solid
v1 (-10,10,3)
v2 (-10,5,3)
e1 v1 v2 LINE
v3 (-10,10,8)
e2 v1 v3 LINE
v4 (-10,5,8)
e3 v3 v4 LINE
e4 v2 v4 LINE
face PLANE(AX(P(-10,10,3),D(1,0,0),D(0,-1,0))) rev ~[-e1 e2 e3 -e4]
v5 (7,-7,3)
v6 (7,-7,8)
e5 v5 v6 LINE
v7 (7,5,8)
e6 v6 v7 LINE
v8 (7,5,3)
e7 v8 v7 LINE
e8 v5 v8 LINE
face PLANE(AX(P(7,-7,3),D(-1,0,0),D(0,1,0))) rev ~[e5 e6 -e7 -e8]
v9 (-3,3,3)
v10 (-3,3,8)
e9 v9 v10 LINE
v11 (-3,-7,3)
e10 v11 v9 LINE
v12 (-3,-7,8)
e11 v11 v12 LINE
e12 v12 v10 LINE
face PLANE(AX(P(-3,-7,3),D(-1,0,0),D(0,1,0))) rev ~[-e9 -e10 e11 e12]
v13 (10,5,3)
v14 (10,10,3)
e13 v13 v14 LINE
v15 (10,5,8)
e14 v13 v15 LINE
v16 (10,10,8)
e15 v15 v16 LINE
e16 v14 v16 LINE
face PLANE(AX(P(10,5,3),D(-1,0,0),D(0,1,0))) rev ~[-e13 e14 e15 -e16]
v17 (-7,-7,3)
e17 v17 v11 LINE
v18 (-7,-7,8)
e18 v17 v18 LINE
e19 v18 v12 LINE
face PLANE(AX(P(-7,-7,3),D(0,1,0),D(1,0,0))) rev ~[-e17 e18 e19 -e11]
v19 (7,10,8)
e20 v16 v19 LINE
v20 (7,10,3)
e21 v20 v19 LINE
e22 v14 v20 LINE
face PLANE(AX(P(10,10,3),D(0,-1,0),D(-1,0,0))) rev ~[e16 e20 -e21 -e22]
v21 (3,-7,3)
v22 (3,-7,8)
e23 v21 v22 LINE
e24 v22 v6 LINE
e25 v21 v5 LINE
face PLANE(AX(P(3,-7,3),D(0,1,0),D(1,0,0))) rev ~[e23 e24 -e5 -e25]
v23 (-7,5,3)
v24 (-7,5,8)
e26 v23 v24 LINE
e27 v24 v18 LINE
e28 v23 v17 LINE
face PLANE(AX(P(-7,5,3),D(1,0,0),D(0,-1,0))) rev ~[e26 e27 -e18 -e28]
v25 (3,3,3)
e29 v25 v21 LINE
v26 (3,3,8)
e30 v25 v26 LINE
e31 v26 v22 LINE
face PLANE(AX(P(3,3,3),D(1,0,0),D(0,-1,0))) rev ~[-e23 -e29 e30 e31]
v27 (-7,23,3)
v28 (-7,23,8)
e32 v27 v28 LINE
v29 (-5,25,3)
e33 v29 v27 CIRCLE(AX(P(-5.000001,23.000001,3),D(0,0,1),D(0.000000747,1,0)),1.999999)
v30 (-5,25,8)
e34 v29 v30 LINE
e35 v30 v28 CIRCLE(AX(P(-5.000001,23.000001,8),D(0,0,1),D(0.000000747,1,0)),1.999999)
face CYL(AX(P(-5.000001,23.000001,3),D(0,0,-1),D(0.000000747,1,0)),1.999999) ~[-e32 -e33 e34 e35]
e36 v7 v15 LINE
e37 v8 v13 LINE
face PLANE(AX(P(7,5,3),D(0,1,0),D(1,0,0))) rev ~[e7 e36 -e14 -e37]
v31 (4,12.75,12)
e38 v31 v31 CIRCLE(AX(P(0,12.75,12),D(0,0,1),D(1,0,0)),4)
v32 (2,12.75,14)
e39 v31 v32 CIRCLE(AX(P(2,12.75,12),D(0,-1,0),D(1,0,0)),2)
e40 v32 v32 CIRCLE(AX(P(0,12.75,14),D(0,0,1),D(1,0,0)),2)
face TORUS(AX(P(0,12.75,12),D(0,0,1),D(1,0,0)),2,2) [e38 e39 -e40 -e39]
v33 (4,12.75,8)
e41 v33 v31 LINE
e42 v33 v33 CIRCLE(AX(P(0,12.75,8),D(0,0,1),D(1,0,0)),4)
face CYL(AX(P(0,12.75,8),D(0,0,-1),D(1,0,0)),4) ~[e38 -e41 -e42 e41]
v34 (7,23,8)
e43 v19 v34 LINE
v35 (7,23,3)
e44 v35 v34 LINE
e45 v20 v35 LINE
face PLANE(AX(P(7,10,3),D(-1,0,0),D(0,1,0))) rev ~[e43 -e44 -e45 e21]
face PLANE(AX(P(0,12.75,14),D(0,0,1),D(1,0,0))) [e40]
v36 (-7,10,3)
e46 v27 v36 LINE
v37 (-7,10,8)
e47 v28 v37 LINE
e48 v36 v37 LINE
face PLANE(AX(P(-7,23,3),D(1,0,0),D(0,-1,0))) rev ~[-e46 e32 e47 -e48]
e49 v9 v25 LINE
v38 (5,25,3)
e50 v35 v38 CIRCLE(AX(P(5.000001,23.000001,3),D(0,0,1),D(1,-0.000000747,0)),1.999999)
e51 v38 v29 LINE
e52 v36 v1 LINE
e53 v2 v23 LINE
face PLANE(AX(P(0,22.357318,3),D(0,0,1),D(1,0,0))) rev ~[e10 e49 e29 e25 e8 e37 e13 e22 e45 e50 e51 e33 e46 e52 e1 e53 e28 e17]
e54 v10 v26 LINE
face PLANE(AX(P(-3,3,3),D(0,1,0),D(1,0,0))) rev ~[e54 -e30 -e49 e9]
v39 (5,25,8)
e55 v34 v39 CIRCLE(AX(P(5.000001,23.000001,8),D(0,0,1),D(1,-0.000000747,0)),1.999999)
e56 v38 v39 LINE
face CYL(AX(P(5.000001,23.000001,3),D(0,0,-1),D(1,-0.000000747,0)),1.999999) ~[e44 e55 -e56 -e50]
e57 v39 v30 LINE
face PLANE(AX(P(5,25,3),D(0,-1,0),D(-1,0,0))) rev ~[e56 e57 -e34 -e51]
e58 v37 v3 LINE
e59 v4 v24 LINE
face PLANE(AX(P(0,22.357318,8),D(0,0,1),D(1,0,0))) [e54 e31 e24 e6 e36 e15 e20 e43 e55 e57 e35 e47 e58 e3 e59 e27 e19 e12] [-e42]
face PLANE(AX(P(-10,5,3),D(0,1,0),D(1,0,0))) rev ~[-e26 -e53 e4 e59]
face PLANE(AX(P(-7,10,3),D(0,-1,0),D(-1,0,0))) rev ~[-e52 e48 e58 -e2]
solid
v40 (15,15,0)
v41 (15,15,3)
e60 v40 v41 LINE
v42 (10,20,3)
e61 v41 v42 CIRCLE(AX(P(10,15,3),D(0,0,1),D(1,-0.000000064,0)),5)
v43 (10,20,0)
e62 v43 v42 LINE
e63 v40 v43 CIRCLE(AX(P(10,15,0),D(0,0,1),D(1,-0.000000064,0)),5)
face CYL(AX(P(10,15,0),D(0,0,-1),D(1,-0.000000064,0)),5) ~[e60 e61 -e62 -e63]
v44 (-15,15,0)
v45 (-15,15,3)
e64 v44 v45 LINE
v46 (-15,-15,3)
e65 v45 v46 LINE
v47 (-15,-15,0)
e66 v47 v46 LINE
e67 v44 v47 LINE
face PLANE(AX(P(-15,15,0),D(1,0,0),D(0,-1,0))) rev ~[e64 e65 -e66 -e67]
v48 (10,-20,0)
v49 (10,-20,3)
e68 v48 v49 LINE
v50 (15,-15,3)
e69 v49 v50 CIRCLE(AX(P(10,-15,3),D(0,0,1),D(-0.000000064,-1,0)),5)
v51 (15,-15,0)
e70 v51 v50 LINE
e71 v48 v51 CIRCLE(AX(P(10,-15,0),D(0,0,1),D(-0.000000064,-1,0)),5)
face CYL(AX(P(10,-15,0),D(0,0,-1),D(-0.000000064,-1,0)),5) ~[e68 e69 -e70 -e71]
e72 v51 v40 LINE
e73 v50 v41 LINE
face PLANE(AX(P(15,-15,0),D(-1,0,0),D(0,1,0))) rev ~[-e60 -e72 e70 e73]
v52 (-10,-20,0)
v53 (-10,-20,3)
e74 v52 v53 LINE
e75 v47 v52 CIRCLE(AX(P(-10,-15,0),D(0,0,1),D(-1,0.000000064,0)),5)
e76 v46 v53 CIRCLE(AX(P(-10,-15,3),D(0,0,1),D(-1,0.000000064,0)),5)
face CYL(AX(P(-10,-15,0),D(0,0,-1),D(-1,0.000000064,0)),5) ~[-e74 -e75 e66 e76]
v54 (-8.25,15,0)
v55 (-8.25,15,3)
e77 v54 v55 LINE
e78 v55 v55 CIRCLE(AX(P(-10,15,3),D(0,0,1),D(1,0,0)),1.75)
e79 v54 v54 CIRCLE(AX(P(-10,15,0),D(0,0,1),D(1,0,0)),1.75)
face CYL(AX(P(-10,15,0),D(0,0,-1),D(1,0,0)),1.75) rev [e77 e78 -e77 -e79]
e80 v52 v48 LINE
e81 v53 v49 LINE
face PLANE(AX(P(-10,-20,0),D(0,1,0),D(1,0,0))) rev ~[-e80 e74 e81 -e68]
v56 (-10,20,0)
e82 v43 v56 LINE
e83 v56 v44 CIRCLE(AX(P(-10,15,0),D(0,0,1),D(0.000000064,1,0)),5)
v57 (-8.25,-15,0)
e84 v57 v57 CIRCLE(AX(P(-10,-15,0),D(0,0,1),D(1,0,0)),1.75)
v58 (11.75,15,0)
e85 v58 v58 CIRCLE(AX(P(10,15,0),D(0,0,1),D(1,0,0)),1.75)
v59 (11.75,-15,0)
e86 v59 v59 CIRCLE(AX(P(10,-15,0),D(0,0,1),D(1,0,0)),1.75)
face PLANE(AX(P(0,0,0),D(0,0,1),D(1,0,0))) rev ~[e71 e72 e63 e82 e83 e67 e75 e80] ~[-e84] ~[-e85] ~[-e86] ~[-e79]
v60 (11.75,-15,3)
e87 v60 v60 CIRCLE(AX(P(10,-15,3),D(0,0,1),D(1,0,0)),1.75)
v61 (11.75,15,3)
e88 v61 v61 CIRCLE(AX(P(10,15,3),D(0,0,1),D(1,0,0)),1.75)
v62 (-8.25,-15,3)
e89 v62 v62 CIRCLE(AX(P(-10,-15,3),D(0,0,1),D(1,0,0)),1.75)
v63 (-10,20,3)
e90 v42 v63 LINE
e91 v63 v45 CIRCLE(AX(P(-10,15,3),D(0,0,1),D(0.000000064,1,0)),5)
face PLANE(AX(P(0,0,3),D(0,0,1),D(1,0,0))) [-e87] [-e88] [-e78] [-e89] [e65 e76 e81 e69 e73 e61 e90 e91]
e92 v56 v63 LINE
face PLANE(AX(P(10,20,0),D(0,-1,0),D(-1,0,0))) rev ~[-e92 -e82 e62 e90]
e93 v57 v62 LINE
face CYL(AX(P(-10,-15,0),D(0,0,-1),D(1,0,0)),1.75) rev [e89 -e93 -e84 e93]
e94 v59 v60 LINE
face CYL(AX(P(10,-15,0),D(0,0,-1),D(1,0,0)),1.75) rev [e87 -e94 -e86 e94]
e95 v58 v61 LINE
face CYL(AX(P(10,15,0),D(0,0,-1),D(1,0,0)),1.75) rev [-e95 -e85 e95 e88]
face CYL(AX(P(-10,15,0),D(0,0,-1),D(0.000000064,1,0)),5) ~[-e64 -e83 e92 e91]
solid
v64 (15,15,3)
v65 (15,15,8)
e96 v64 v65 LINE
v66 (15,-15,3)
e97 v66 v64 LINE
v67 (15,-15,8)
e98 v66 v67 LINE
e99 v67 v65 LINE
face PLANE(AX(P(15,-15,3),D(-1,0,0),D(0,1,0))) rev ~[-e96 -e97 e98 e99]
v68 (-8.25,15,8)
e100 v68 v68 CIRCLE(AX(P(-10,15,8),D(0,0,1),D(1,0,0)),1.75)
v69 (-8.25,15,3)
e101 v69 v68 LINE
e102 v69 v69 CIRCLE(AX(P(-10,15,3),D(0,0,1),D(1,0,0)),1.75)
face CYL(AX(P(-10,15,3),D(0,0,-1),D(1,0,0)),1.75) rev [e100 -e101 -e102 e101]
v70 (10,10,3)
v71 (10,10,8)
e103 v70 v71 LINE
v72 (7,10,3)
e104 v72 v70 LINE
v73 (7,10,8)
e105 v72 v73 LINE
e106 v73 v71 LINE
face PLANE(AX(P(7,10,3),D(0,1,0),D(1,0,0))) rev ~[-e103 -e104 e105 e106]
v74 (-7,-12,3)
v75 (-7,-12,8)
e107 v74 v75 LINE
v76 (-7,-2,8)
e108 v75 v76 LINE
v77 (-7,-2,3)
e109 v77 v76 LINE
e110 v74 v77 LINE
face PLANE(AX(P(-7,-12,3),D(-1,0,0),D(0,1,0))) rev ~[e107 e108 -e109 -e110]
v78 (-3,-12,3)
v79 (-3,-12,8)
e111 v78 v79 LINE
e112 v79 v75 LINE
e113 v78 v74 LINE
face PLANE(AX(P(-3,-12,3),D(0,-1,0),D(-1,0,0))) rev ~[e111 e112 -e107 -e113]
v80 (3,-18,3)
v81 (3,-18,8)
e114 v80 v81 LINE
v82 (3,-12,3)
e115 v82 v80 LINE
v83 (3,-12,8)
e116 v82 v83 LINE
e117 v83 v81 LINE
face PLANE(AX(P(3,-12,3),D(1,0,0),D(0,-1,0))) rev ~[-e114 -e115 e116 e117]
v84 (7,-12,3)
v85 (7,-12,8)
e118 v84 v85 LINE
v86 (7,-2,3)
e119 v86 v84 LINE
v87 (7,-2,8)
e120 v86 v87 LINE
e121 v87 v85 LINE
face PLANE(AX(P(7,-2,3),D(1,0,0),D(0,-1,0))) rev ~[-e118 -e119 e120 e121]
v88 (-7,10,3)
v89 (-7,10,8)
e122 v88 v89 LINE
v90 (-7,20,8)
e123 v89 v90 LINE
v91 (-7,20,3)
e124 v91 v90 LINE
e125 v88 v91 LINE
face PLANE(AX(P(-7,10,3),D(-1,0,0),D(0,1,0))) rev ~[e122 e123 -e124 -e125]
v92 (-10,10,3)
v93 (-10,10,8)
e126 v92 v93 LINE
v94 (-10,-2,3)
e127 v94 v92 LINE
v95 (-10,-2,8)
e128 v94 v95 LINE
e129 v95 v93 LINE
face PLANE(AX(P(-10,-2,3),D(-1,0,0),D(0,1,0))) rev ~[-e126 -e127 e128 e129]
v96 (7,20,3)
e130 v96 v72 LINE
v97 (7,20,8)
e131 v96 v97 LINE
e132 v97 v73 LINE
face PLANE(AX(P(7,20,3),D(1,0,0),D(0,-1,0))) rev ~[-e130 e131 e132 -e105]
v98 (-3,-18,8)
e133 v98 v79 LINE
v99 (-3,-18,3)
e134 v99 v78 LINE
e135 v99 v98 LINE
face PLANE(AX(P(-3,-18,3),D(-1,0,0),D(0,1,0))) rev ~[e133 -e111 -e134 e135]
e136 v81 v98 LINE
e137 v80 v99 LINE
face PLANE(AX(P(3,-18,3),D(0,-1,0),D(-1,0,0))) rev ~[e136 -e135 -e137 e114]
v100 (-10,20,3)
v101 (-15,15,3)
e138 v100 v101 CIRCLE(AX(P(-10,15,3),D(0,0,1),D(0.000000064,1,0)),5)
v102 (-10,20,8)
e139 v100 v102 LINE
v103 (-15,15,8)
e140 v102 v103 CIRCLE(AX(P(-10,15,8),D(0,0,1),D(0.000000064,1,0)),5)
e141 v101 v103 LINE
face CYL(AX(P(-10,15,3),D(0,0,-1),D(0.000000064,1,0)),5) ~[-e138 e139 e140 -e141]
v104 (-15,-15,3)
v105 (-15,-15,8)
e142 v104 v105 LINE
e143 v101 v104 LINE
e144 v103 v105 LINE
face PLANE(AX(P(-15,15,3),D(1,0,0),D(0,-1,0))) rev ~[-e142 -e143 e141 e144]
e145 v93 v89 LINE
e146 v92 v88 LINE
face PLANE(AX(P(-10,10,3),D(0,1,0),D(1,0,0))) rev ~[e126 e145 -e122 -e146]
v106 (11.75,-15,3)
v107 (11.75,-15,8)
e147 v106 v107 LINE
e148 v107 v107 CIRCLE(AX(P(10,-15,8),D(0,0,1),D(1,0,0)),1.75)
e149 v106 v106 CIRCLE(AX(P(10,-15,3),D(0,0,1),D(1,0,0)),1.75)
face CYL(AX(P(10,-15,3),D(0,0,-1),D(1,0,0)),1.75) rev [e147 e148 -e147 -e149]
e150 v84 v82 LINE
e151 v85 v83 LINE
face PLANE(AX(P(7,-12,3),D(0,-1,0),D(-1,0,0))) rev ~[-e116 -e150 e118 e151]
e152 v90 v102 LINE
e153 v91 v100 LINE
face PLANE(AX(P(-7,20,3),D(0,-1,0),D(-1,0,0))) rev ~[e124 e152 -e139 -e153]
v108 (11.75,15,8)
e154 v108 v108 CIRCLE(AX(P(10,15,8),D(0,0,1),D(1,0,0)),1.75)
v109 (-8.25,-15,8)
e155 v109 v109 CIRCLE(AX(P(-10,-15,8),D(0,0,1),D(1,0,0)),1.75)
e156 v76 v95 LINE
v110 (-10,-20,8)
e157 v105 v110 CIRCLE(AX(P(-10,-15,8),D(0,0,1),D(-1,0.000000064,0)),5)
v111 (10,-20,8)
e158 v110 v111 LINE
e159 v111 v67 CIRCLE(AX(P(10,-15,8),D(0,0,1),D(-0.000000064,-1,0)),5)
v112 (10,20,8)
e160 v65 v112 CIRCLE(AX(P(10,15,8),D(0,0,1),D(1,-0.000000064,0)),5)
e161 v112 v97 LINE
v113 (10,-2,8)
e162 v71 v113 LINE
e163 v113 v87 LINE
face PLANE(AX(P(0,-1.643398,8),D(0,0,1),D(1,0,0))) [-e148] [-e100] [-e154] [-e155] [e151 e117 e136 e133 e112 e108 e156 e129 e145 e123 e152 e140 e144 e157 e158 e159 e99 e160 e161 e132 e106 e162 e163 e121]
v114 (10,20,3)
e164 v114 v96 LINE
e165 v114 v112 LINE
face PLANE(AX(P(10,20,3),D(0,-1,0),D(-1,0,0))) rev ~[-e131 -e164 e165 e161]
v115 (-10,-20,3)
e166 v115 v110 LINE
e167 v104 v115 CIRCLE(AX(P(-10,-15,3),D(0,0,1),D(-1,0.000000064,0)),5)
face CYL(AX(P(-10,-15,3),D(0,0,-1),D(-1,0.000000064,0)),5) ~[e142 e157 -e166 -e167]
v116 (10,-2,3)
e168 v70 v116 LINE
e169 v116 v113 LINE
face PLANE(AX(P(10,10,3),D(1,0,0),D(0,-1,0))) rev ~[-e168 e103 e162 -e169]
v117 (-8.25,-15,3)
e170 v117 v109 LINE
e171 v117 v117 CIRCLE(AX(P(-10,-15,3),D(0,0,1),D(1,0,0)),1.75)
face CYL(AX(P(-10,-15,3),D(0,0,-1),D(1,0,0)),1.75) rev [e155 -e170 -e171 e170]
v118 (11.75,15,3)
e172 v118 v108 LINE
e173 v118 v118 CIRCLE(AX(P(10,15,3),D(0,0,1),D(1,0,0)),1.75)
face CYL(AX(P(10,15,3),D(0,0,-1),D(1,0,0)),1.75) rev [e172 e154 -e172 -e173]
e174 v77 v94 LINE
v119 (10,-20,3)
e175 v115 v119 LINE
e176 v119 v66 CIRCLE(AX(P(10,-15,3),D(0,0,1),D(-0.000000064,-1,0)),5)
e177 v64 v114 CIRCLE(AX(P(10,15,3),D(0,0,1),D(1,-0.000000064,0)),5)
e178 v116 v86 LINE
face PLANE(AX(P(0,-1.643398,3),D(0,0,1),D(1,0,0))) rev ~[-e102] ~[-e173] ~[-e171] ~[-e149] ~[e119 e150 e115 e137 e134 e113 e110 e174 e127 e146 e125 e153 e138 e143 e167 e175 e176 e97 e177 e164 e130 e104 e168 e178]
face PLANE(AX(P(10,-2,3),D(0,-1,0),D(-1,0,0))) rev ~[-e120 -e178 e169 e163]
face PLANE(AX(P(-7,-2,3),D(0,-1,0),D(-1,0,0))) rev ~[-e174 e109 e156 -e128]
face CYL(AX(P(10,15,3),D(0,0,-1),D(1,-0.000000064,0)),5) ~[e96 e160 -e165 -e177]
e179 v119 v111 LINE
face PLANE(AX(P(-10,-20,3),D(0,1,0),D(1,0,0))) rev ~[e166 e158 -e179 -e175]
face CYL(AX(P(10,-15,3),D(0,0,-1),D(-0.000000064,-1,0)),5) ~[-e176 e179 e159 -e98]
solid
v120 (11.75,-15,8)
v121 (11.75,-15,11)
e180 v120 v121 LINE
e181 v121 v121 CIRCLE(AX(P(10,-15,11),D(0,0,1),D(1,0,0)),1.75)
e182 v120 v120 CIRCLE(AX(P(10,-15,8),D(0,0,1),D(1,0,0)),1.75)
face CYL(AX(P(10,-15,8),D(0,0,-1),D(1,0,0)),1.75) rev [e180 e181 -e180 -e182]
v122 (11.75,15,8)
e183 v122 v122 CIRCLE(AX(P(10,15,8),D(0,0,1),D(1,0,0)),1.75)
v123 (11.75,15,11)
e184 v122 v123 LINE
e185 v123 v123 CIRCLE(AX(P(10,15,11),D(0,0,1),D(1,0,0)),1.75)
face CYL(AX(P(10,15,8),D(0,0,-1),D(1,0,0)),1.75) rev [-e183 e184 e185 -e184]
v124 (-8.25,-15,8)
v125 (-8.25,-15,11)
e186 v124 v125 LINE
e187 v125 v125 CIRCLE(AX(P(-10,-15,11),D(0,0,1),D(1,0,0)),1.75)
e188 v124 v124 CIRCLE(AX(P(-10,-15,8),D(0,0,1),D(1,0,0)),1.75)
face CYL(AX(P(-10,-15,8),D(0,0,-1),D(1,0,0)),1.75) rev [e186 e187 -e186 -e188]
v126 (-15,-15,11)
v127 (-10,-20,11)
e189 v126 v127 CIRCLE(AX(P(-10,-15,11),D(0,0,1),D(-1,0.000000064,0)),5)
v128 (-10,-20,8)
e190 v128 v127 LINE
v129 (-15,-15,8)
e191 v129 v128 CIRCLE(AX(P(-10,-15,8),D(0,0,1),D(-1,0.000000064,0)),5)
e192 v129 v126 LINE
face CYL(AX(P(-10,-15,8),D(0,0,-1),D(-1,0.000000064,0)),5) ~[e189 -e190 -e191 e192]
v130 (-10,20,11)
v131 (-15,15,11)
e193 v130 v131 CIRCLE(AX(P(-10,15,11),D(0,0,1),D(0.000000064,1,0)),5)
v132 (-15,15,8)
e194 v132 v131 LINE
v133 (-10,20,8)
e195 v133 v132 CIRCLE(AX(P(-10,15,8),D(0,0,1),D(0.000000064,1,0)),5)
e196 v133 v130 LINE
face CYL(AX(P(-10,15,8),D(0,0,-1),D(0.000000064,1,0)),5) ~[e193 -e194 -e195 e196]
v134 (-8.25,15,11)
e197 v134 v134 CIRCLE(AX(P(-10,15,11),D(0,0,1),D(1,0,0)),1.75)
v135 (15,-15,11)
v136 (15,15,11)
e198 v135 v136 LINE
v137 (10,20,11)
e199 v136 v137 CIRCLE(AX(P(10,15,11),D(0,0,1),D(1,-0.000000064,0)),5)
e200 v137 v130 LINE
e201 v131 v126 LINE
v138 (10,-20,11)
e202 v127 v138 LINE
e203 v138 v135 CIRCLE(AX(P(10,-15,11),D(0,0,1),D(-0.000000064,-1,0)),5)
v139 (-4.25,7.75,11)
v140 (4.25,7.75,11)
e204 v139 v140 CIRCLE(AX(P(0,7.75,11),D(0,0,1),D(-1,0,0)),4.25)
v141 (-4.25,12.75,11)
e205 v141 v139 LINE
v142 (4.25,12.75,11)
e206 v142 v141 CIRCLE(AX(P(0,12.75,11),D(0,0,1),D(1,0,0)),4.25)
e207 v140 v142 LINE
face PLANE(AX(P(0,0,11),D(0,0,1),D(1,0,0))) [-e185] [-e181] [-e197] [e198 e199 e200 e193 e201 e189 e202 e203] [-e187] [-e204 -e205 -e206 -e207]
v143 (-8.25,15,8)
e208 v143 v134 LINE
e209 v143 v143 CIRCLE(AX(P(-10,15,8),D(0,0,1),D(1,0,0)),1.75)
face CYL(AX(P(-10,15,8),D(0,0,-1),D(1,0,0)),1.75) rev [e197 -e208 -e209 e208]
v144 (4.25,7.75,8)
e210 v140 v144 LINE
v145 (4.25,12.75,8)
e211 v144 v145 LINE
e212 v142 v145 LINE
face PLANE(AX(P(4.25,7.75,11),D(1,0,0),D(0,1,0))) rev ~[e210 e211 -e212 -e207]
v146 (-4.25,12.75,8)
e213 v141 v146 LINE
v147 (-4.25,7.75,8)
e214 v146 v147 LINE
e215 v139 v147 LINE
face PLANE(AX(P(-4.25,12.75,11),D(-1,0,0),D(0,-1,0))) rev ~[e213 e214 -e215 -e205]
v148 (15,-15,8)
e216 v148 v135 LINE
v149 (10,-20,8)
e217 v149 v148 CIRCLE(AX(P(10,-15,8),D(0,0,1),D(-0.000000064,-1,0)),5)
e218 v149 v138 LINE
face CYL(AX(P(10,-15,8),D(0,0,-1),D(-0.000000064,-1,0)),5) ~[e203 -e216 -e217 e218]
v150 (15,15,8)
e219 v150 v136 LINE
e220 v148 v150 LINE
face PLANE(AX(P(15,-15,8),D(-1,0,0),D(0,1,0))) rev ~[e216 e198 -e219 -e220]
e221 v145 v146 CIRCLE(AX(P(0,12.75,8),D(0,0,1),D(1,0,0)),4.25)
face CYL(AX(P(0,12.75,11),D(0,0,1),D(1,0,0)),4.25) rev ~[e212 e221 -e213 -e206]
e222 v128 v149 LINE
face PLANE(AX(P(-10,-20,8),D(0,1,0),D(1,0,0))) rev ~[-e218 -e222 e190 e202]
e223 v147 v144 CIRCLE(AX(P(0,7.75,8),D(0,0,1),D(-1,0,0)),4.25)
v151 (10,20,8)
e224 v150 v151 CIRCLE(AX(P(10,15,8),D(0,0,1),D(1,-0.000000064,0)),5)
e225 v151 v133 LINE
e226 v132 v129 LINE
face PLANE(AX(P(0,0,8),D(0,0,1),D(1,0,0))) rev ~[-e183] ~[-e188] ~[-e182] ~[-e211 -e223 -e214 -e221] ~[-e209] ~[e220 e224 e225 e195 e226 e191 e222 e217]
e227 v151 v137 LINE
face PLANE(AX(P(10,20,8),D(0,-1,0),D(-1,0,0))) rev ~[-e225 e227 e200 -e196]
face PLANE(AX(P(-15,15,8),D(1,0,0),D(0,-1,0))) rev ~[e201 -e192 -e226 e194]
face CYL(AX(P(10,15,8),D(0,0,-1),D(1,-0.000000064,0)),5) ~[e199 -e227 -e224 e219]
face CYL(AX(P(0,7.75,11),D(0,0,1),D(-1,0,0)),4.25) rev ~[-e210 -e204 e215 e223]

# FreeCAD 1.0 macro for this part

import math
import FreeCAD as App
import Part
import Sketcher
Q = App.Units.Quantity


def edges_at(feature, points):
    """Names of the edges that pass closest to the given points."""
    edges = feature.Shape.Edges
    near = lambda p: min(range(len(edges)), key=lambda i: edges[i].distToShape(Part.Vertex(*p))[0])
    return sorted({f"Edge{near(p) + 1}" for p in points})

doc = App.newDocument("Part")
body = doc.addObject("PartDesign::Body", "Body")

sketch1 = body.newObject("Sketcher::SketchObject", "Sketch")
sketch1.AttachmentSupport = (doc.getObject("XY_Plane"), [""])
sketch1.MapMode = "FlatFace"
sketch1.addGeometry(Part.LineSegment(App.Vector(10, 20, 0), App.Vector(-10, 20, 0)), False)
sketch1.addGeometry(Part.ArcOfCircle(Part.Circle(App.Vector(-10, 15, 0), App.Vector(0, 0, 1), 5), math.radians(90), math.radians(180)), False)
sketch1.addGeometry(Part.LineSegment(App.Vector(-15, 15, 0), App.Vector(-15, -15, 0)), False)
sketch1.addGeometry(Part.ArcOfCircle(Part.Circle(App.Vector(-10, -15, 0), App.Vector(0, 0, 1), 5), math.radians(180), math.radians(270)), False)
sketch1.addGeometry(Part.LineSegment(App.Vector(-10, -20, 0), App.Vector(10, -20, 0)), False)
sketch1.addGeometry(Part.ArcOfCircle(Part.Circle(App.Vector(10, -15, 0), App.Vector(0, 0, 1), 5), math.radians(-90), math.radians(0)), False)
sketch1.addGeometry(Part.LineSegment(App.Vector(15, -15, 0), App.Vector(15, 15, 0)), False)
sketch1.addGeometry(Part.ArcOfCircle(Part.Circle(App.Vector(10, 15, 0), App.Vector(0, 0, 1), 5), math.radians(0), math.radians(90)), False)
sketch1.addGeometry(Part.Circle(App.Vector(-10, -15, 0), App.Vector(0, 0, 1), 1.8), False)
sketch1.addGeometry(Part.Circle(App.Vector(10, -15, 0), App.Vector(0, 0, 1), 1.8), False)
sketch1.addGeometry(Part.Circle(App.Vector(-10, 15, 0), App.Vector(0, 0, 1), 1.8), False)
sketch1.addGeometry(Part.Circle(App.Vector(10, 15, 0), App.Vector(0, 0, 1), 1.8), False)
sketch1.addConstraint(Sketcher.Constraint("Tangent", 0, 2, 1, 1))
sketch1.addConstraint(Sketcher.Constraint("Tangent", 1, 2, 2, 1))
sketch1.addConstraint(Sketcher.Constraint("Tangent", 2, 2, 3, 1))
sketch1.addConstraint(Sketcher.Constraint("Tangent", 3, 2, 4, 1))
sketch1.addConstraint(Sketcher.Constraint("Tangent", 4, 2, 5, 1))
sketch1.addConstraint(Sketcher.Constraint("Tangent", 5, 2, 6, 1))
sketch1.addConstraint(Sketcher.Constraint("Tangent", 6, 2, 7, 1))
sketch1.addConstraint(Sketcher.Constraint("Tangent", 7, 2, 0, 1))
sketch1.addConstraint(Sketcher.Constraint("Horizontal", 0))
sketch1.addConstraint(Sketcher.Constraint("Vertical", 2))
sketch1.addConstraint(Sketcher.Constraint("Horizontal", 4))
sketch1.addConstraint(Sketcher.Constraint("Vertical", 6))
sketch1.addConstraint(Sketcher.Constraint("Coincident", 8, 3, 3, 3))
sketch1.addConstraint(Sketcher.Constraint("Coincident", 9, 3, 5, 3))
sketch1.addConstraint(Sketcher.Constraint("Coincident", 10, 3, 1, 3))
sketch1.addConstraint(Sketcher.Constraint("Coincident", 11, 3, 7, 3))
sketch1.addConstraint(Sketcher.Constraint("Equal", 1, 3))
sketch1.addConstraint(Sketcher.Constraint("Equal", 3, 5))
sketch1.addConstraint(Sketcher.Constraint("Equal", 5, 7))
sketch1.addConstraint(Sketcher.Constraint("Equal", 8, 9))
sketch1.addConstraint(Sketcher.Constraint("Equal", 9, 10))
sketch1.addConstraint(Sketcher.Constraint("Equal", 10, 11))
sketch1.addConstraint(Sketcher.Constraint("Symmetric", 1, 3, 5, 3, -1, 1))
sketch1.addConstraint(Sketcher.Constraint("Radius", 1, Q("5 mm")))
sketch1.addConstraint(Sketcher.Constraint("Diameter", 8, Q("3.5 mm")))
sketch1.addConstraint(Sketcher.Constraint("DistanceX", 0, 2, 0, 1, Q("20 mm")))
sketch1.addConstraint(Sketcher.Constraint("DistanceY", 2, 2, 2, 1, Q("30 mm")))
pad1 = body.newObject("PartDesign::Pad", "Pad")
pad1.Profile = sketch1
pad1.Length = 3
body2 = doc.addObject("PartDesign::Body", "Body001")

sketch2 = body2.newObject("Sketcher::SketchObject", "Sketch001")
sketch2.AttachmentSupport = (doc.getObject("XY_Plane001"), [""])
sketch2.MapMode = "FlatFace"
sketch2.AttachmentOffset = App.Placement(App.Vector(0, 0, 3), App.Rotation())
sketch2.addGeometry(Part.LineSegment(App.Vector(-7, 20, 0), App.Vector(-10, 20, 0)), False)
sketch2.addGeometry(Part.ArcOfCircle(Part.Circle(App.Vector(-10, 15, 0), App.Vector(0, 0, 1), 5), math.radians(90), math.radians(180)), False)
sketch2.addGeometry(Part.LineSegment(App.Vector(-15, 15, 0), App.Vector(-15, -15, 0)), False)
sketch2.addGeometry(Part.ArcOfCircle(Part.Circle(App.Vector(-10, -15, 0), App.Vector(0, 0, 1), 5), math.radians(180), math.radians(270)), False)
sketch2.addGeometry(Part.LineSegment(App.Vector(-10, -20, 0), App.Vector(10, -20, 0)), False)
sketch2.addGeometry(Part.ArcOfCircle(Part.Circle(App.Vector(10, -15, 0), App.Vector(0, 0, 1), 5), math.radians(-90), math.radians(0)), False)
sketch2.addGeometry(Part.LineSegment(App.Vector(15, -15, 0), App.Vector(15, 15, 0)), False)
sketch2.addGeometry(Part.ArcOfCircle(Part.Circle(App.Vector(10, 15, 0), App.Vector(0, 0, 1), 5), math.radians(0), math.radians(90)), False)
sketch2.addGeometry(Part.LineSegment(App.Vector(10, 20, 0), App.Vector(7, 20, 0)), False)
sketch2.addGeometry(Part.LineSegment(App.Vector(7, 20, 0), App.Vector(7, 10, 0)), False)
sketch2.addGeometry(Part.LineSegment(App.Vector(7, 10, 0), App.Vector(10, 10, 0)), False)
sketch2.addGeometry(Part.LineSegment(App.Vector(10, 10, 0), App.Vector(10, -2, 0)), False)
sketch2.addGeometry(Part.LineSegment(App.Vector(10, -2, 0), App.Vector(7, -2, 0)), False)
sketch2.addGeometry(Part.LineSegment(App.Vector(7, -2, 0), App.Vector(7, -12, 0)), False)
sketch2.addGeometry(Part.LineSegment(App.Vector(7, -12, 0), App.Vector(3, -12, 0)), False)
sketch2.addGeometry(Part.LineSegment(App.Vector(3, -12, 0), App.Vector(3, -18, 0)), False)
sketch2.addGeometry(Part.LineSegment(App.Vector(3, -18, 0), App.Vector(-3, -18, 0)), False)
sketch2.addGeometry(Part.LineSegment(App.Vector(-3, -18, 0), App.Vector(-3, -12, 0)), False)
sketch2.addGeometry(Part.LineSegment(App.Vector(-3, -12, 0), App.Vector(-7, -12, 0)), False)
sketch2.addGeometry(Part.LineSegment(App.Vector(-7, -12, 0), App.Vector(-7, -2, 0)), False)
sketch2.addGeometry(Part.LineSegment(App.Vector(-7, -2, 0), App.Vector(-10, -2, 0)), False)
sketch2.addGeometry(Part.LineSegment(App.Vector(-10, -2, 0), App.Vector(-10, 10, 0)), False)
sketch2.addGeometry(Part.LineSegment(App.Vector(-10, 10, 0), App.Vector(-7, 10, 0)), False)
sketch2.addGeometry(Part.LineSegment(App.Vector(-7, 10, 0), App.Vector(-7, 20, 0)), False)
sketch2.addGeometry(Part.Circle(App.Vector(-10, -15, 0), App.Vector(0, 0, 1), 1.8), False)
sketch2.addGeometry(Part.Circle(App.Vector(10, -15, 0), App.Vector(0, 0, 1), 1.8), False)
sketch2.addGeometry(Part.Circle(App.Vector(-10, 15, 0), App.Vector(0, 0, 1), 1.8), False)
sketch2.addGeometry(Part.Circle(App.Vector(10, 15, 0), App.Vector(0, 0, 1), 1.8), False)
sketch2.addConstraint(Sketcher.Constraint("Tangent", 0, 2, 1, 1))
sketch2.addConstraint(Sketcher.Constraint("Tangent", 1, 2, 2, 1))
sketch2.addConstraint(Sketcher.Constraint("Tangent", 2, 2, 3, 1))
sketch2.addConstraint(Sketcher.Constraint("Tangent", 3, 2, 4, 1))
sketch2.addConstraint(Sketcher.Constraint("Tangent", 4, 2, 5, 1))
sketch2.addConstraint(Sketcher.Constraint("Tangent", 5, 2, 6, 1))
sketch2.addConstraint(Sketcher.Constraint("Tangent", 6, 2, 7, 1))
sketch2.addConstraint(Sketcher.Constraint("Tangent", 7, 2, 8, 1))
sketch2.addConstraint(Sketcher.Constraint("Coincident", 8, 2, 9, 1))
sketch2.addConstraint(Sketcher.Constraint("Coincident", 9, 2, 10, 1))
sketch2.addConstraint(Sketcher.Constraint("Coincident", 10, 2, 11, 1))
sketch2.addConstraint(Sketcher.Constraint("Coincident", 11, 2, 12, 1))
sketch2.addConstraint(Sketcher.Constraint("Coincident", 12, 2, 13, 1))
sketch2.addConstraint(Sketcher.Constraint("Coincident", 13, 2, 14, 1))
sketch2.addConstraint(Sketcher.Constraint("Coincident", 14, 2, 15, 1))
sketch2.addConstraint(Sketcher.Constraint("Coincident", 15, 2, 16, 1))
sketch2.addConstraint(Sketcher.Constraint("Coincident", 16, 2, 17, 1))
sketch2.addConstraint(Sketcher.Constraint("Coincident", 17, 2, 18, 1))
sketch2.addConstraint(Sketcher.Constraint("Coincident", 18, 2, 19, 1))
sketch2.addConstraint(Sketcher.Constraint("Coincident", 19, 2, 20, 1))
sketch2.addConstraint(Sketcher.Constraint("Coincident", 20, 2, 21, 1))
sketch2.addConstraint(Sketcher.Constraint("Coincident", 21, 2, 22, 1))
sketch2.addConstraint(Sketcher.Constraint("Coincident", 22, 2, 23, 1))
sketch2.addConstraint(Sketcher.Constraint("Coincident", 23, 2, 0, 1))
sketch2.addConstraint(Sketcher.Constraint("Horizontal", 0))
sketch2.addConstraint(Sketcher.Constraint("Vertical", 2))
sketch2.addConstraint(Sketcher.Constraint("Horizontal", 4))
sketch2.addConstraint(Sketcher.Constraint("Vertical", 6))
sketch2.addConstraint(Sketcher.Constraint("Horizontal", 8))
sketch2.addConstraint(Sketcher.Constraint("Vertical", 9))
sketch2.addConstraint(Sketcher.Constraint("Horizontal", 10))
sketch2.addConstraint(Sketcher.Constraint("Vertical", 11))
sketch2.addConstraint(Sketcher.Constraint("Horizontal", 12))
sketch2.addConstraint(Sketcher.Constraint("Vertical", 13))
sketch2.addConstraint(Sketcher.Constraint("Horizontal", 14))
sketch2.addConstraint(Sketcher.Constraint("Vertical", 15))
sketch2.addConstraint(Sketcher.Constraint("Horizontal", 16))
sketch2.addConstraint(Sketcher.Constraint("Vertical", 17))
sketch2.addConstraint(Sketcher.Constraint("Horizontal", 18))
sketch2.addConstraint(Sketcher.Constraint("Vertical", 19))
sketch2.addConstraint(Sketcher.Constraint("Horizontal", 20))
sketch2.addConstraint(Sketcher.Constraint("Vertical", 21))
sketch2.addConstraint(Sketcher.Constraint("Horizontal", 22))
sketch2.addConstraint(Sketcher.Constraint("Vertical", 23))
sketch2.addConstraint(Sketcher.Constraint("Coincident", 24, 3, 3, 3))
sketch2.addConstraint(Sketcher.Constraint("Coincident", 25, 3, 5, 3))
sketch2.addConstraint(Sketcher.Constraint("Coincident", 26, 3, 1, 3))
sketch2.addConstraint(Sketcher.Constraint("Coincident", 27, 3, 7, 3))
sketch2.addConstraint(Sketcher.Constraint("Equal", 1, 3))
sketch2.addConstraint(Sketcher.Constraint("Equal", 3, 5))
sketch2.addConstraint(Sketcher.Constraint("Equal", 5, 7))
sketch2.addConstraint(Sketcher.Constraint("Equal", 24, 25))
sketch2.addConstraint(Sketcher.Constraint("Equal", 25, 26))
sketch2.addConstraint(Sketcher.Constraint("Equal", 26, 27))
sketch2.addConstraint(Sketcher.Constraint("Symmetric", 1, 3, 5, 3, -1, 1))
sketch2.addConstraint(Sketcher.Constraint("Symmetric", 14, 2, 17, 2, -2))
sketch2.addConstraint(Sketcher.Constraint("Symmetric", 12, 2, 19, 2, -2))
sketch2.addConstraint(Sketcher.Constraint("Symmetric", 10, 2, 21, 2, -2))
sketch2.addConstraint(Sketcher.Constraint("Symmetric", 8, 2, 23, 2, -2))
sketch2.addConstraint(Sketcher.Constraint("Vertical", 7, 2, 10, 2))
sketch2.addConstraint(Sketcher.Constraint("Vertical", 9, 2, 12, 2))
sketch2.addConstraint(Sketcher.Constraint("Equal", 9, 13))
sketch2.addConstraint(Sketcher.Constraint("Equal", 16, 15))
sketch2.addConstraint(Sketcher.Constraint("Radius", 1, Q("5 mm")))
sketch2.addConstraint(Sketcher.Constraint("Diameter", 24, Q("3.5 mm")))
sketch2.addConstraint(Sketcher.Constraint("DistanceX", 0, 2, 0, 1, Q("3 mm")))
sketch2.addConstraint(Sketcher.Constraint("DistanceX", 4, 1, 4, 2, Q("20 mm")))
sketch2.addConstraint(Sketcher.Constraint("DistanceX", 14, 2, 14, 1, Q("4 mm")))
sketch2.addConstraint(Sketcher.Constraint("DistanceY", 2, 2, 2, 1, Q("30 mm")))
sketch2.addConstraint(Sketcher.Constraint("DistanceY", 9, 2, 9, 1, Q("10 mm")))
sketch2.addConstraint(Sketcher.Constraint("DistanceY", 11, 2, 11, 1, Q("12 mm")))
pad2 = body2.newObject("PartDesign::Pad", "Pad001")
pad2.Profile = sketch2
pad2.Length = 5
body3 = doc.addObject("PartDesign::Body", "Body002")

sketch3 = body3.newObject("Sketcher::SketchObject", "Sketch002")
sketch3.AttachmentSupport = (doc.getObject("XY_Plane002"), [""])
sketch3.MapMode = "FlatFace"
sketch3.AttachmentOffset = App.Placement(App.Vector(0, 0, 3), App.Rotation())
sketch3.addGeometry(Part.LineSegment(App.Vector(-7, 23, 0), App.Vector(-7, 10, 0)), False)
sketch3.addGeometry(Part.LineSegment(App.Vector(-7, 10, 0), App.Vector(-10, 10, 0)), False)
sketch3.addGeometry(Part.LineSegment(App.Vector(-10, 10, 0), App.Vector(-10, 5, 0)), False)
sketch3.addGeometry(Part.LineSegment(App.Vector(-10, 5, 0), App.Vector(-7, 5, 0)), False)
sketch3.addGeometry(Part.LineSegment(App.Vector(-7, 5, 0), App.Vector(-7, -7, 0)), False)
sketch3.addGeometry(Part.LineSegment(App.Vector(-7, -7, 0), App.Vector(-3, -7, 0)), False)
sketch3.addGeometry(Part.LineSegment(App.Vector(-3, -7, 0), App.Vector(-3, 3, 0)), False)
sketch3.addGeometry(Part.LineSegment(App.Vector(-3, 3, 0), App.Vector(3, 3, 0)), False)
sketch3.addGeometry(Part.LineSegment(App.Vector(3, 3, 0), App.Vector(3, -7, 0)), False)
sketch3.addGeometry(Part.LineSegment(App.Vector(3, -7, 0), App.Vector(7, -7, 0)), False)
sketch3.addGeometry(Part.LineSegment(App.Vector(7, -7, 0), App.Vector(7, 5, 0)), False)
sketch3.addGeometry(Part.LineSegment(App.Vector(7, 5, 0), App.Vector(10, 5, 0)), False)
sketch3.addGeometry(Part.LineSegment(App.Vector(10, 5, 0), App.Vector(10, 10, 0)), False)
sketch3.addGeometry(Part.LineSegment(App.Vector(10, 10, 0), App.Vector(7, 10, 0)), False)
sketch3.addGeometry(Part.LineSegment(App.Vector(7, 10, 0), App.Vector(7, 23, 0)), False)
sketch3.addGeometry(Part.ArcOfCircle(Part.Circle(App.Vector(5, 23, 0), App.Vector(0, 0, 1), 2), math.radians(0), math.radians(90)), False)
sketch3.addGeometry(Part.LineSegment(App.Vector(5, 25, 0), App.Vector(-5, 25, 0)), False)
sketch3.addGeometry(Part.ArcOfCircle(Part.Circle(App.Vector(-5, 23, 0), App.Vector(0, 0, 1), 2), math.radians(90), math.radians(180)), False)
sketch3.addConstraint(Sketcher.Constraint("Coincident", 0, 2, 1, 1))
sketch3.addConstraint(Sketcher.Constraint("Coincident", 1, 2, 2, 1))
sketch3.addConstraint(Sketcher.Constraint("Coincident", 2, 2, 3, 1))
sketch3.addConstraint(Sketcher.Constraint("Coincident", 3, 2, 4, 1))
sketch3.addConstraint(Sketcher.Constraint("Coincident", 4, 2, 5, 1))
sketch3.addConstraint(Sketcher.Constraint("Coincident", 5, 2, 6, 1))
sketch3.addConstraint(Sketcher.Constraint("Coincident", 6, 2, 7, 1))
sketch3.addConstraint(Sketcher.Constraint("Coincident", 7, 2, 8, 1))
sketch3.addConstraint(Sketcher.Constraint("Coincident", 8, 2, 9, 1))
sketch3.addConstraint(Sketcher.Constraint("Coincident", 9, 2, 10, 1))
sketch3.addConstraint(Sketcher.Constraint("Coincident", 10, 2, 11, 1))
sketch3.addConstraint(Sketcher.Constraint("Coincident", 11, 2, 12, 1))
sketch3.addConstraint(Sketcher.Constraint("Coincident", 12, 2, 13, 1))
sketch3.addConstraint(Sketcher.Constraint("Coincident", 13, 2, 14, 1))
sketch3.addConstraint(Sketcher.Constraint("Tangent", 14, 2, 15, 1))
sketch3.addConstraint(Sketcher.Constraint("Tangent", 15, 2, 16, 1))
sketch3.addConstraint(Sketcher.Constraint("Tangent", 16, 2, 17, 1))
sketch3.addConstraint(Sketcher.Constraint("Tangent", 17, 2, 0, 1))
sketch3.addConstraint(Sketcher.Constraint("Vertical", 0))
sketch3.addConstraint(Sketcher.Constraint("Horizontal", 1))
sketch3.addConstraint(Sketcher.Constraint("Vertical", 2))
sketch3.addConstraint(Sketcher.Constraint("Horizontal", 3))
sketch3.addConstraint(Sketcher.Constraint("Vertical", 4))
sketch3.addConstraint(Sketcher.Constraint("Horizontal", 5))
sketch3.addConstraint(Sketcher.Constraint("Vertical", 6))
sketch3.addConstraint(Sketcher.Constraint("Horizontal", 7))
sketch3.addConstraint(Sketcher.Constraint("Vertical", 8))
sketch3.addConstraint(Sketcher.Constraint("Horizontal", 9))
sketch3.addConstraint(Sketcher.Constraint("Vertical", 10))
sketch3.addConstraint(Sketcher.Constraint("Horizontal", 11))
sketch3.addConstraint(Sketcher.Constraint("Vertical", 12))
sketch3.addConstraint(Sketcher.Constraint("Horizontal", 13))
sketch3.addConstraint(Sketcher.Constraint("Vertical", 14))
sketch3.addConstraint(Sketcher.Constraint("Horizontal", 16))
sketch3.addConstraint(Sketcher.Constraint("Equal", 15, 17))
sketch3.addConstraint(Sketcher.Constraint("Symmetric", 5, 2, 8, 2, -2))
sketch3.addConstraint(Sketcher.Constraint("Symmetric", 3, 2, 10, 2, -2))
sketch3.addConstraint(Sketcher.Constraint("Symmetric", 1, 2, 12, 2, -2))
sketch3.addConstraint(Sketcher.Constraint("Vertical", 0, 2, 3, 2))
sketch3.addConstraint(Sketcher.Constraint("Vertical", 10, 2, 13, 2))
sketch3.addConstraint(Sketcher.Constraint("Equal", 16, 6))
sketch3.addConstraint(Sketcher.Constraint("Radius", 15, Q("1.999999 mm")))
sketch3.addConstraint(Sketcher.Constraint("DistanceX", 1, 2, 1, 1, Q("3 mm")))
sketch3.addConstraint(Sketcher.Constraint("DistanceX", 5, 1, 5, 2, Q("4 mm")))
sketch3.addConstraint(Sketcher.Constraint("DistanceX", 7, 1, 7, 2, Q("6 mm")))
sketch3.addConstraint(Sketcher.Constraint("DistanceY", 0, 2, 0, 1, Q("13 mm")))
sketch3.addConstraint(Sketcher.Constraint("DistanceY", 2, 2, 2, 1, Q("5 mm")))
sketch3.addConstraint(Sketcher.Constraint("DistanceY", 4, 2, 4, 1, Q("12 mm")))
sketch3.addConstraint(Sketcher.Constraint("DistanceY", -1, 1, 15, 3, Q("23.000001 mm")))
pad3 = body3.newObject("PartDesign::Pad", "Pad002")
pad3.Profile = sketch3
pad3.Length = 5

sketch4 = body3.newObject("Sketcher::SketchObject", "Sketch003")
sketch4.AttachmentSupport = (doc.getObject("XY_Plane002"), [""])
sketch4.MapMode = "FlatFace"
sketch4.AttachmentOffset = App.Placement(App.Vector(0, 0, 8), App.Rotation())
sketch4.addGeometry(Part.Circle(App.Vector(0, 12.8, 0), App.Vector(0, 0, 1), 4), False)
sketch4.addConstraint(Sketcher.Constraint("PointOnObject", 0, 3, -2))
sketch4.addConstraint(Sketcher.Constraint("Diameter", 0, Q("8 mm")))
sketch4.addConstraint(Sketcher.Constraint("DistanceY", -1, 1, 0, 3, Q("12.75 mm")))
pad4 = body3.newObject("PartDesign::Pad", "Pad003")
pad4.Profile = sketch4
pad4.Length = 6
doc.recompute()

fillet = body3.newObject("PartDesign::Fillet", "Fillet")
fillet.Base = (pad4, edges_at(pad4, [(-4, 12.75, 14)]))
fillet.Radius = 2
body4 = doc.addObject("PartDesign::Body", "Body003")

sketch5 = body4.newObject("Sketcher::SketchObject", "Sketch004")
sketch5.AttachmentSupport = (doc.getObject("XY_Plane003"), [""])
sketch5.MapMode = "FlatFace"
sketch5.AttachmentOffset = App.Placement(App.Vector(0, 0, 8), App.Rotation())
sketch5.addGeometry(Part.ArcOfCircle(Part.Circle(App.Vector(10, 15, 0), App.Vector(0, 0, 1), 5), math.radians(0), math.radians(90)), False)
sketch5.addGeometry(Part.LineSegment(App.Vector(10, 20, 0), App.Vector(-10, 20, 0)), False)
sketch5.addGeometry(Part.ArcOfCircle(Part.Circle(App.Vector(-10, 15, 0), App.Vector(0, 0, 1), 5), math.radians(90), math.radians(180)), False)
sketch5.addGeometry(Part.LineSegment(App.Vector(-15, 15, 0), App.Vector(-15, -15, 0)), False)
sketch5.addGeometry(Part.ArcOfCircle(Part.Circle(App.Vector(-10, -15, 0), App.Vector(0, 0, 1), 5), math.radians(180), math.radians(270)), False)
sketch5.addGeometry(Part.LineSegment(App.Vector(-10, -20, 0), App.Vector(10, -20, 0)), False)
sketch5.addGeometry(Part.ArcOfCircle(Part.Circle(App.Vector(10, -15, 0), App.Vector(0, 0, 1), 5), math.radians(-90), math.radians(0)), False)
sketch5.addGeometry(Part.LineSegment(App.Vector(15, -15, 0), App.Vector(15, 15, 0)), False)
sketch5.addGeometry(Part.Circle(App.Vector(-10, -15, 0), App.Vector(0, 0, 1), 1.8), False)
sketch5.addGeometry(Part.Circle(App.Vector(10, -15, 0), App.Vector(0, 0, 1), 1.8), False)
sketch5.addGeometry(Part.Circle(App.Vector(-10, 15, 0), App.Vector(0, 0, 1), 1.8), False)
sketch5.addGeometry(Part.Circle(App.Vector(10, 15, 0), App.Vector(0, 0, 1), 1.8), False)
sketch5.addConstraint(Sketcher.Constraint("Tangent", 0, 2, 1, 1))
sketch5.addConstraint(Sketcher.Constraint("Tangent", 1, 2, 2, 1))
sketch5.addConstraint(Sketcher.Constraint("Tangent", 2, 2, 3, 1))
sketch5.addConstraint(Sketcher.Constraint("Tangent", 3, 2, 4, 1))
sketch5.addConstraint(Sketcher.Constraint("Tangent", 4, 2, 5, 1))
sketch5.addConstraint(Sketcher.Constraint("Tangent", 5, 2, 6, 1))
sketch5.addConstraint(Sketcher.Constraint("Tangent", 6, 2, 7, 1))
sketch5.addConstraint(Sketcher.Constraint("Tangent", 7, 2, 0, 1))
sketch5.addConstraint(Sketcher.Constraint("Horizontal", 1))
sketch5.addConstraint(Sketcher.Constraint("Vertical", 3))
sketch5.addConstraint(Sketcher.Constraint("Horizontal", 5))
sketch5.addConstraint(Sketcher.Constraint("Vertical", 7))
sketch5.addConstraint(Sketcher.Constraint("Coincident", 8, 3, 4, 3))
sketch5.addConstraint(Sketcher.Constraint("Coincident", 9, 3, 6, 3))
sketch5.addConstraint(Sketcher.Constraint("Coincident", 10, 3, 2, 3))
sketch5.addConstraint(Sketcher.Constraint("Coincident", 11, 3, 0, 3))
sketch5.addConstraint(Sketcher.Constraint("Equal", 0, 2))
sketch5.addConstraint(Sketcher.Constraint("Equal", 2, 4))
sketch5.addConstraint(Sketcher.Constraint("Equal", 4, 6))
sketch5.addConstraint(Sketcher.Constraint("Equal", 8, 9))
sketch5.addConstraint(Sketcher.Constraint("Equal", 9, 10))
sketch5.addConstraint(Sketcher.Constraint("Equal", 10, 11))
sketch5.addConstraint(Sketcher.Constraint("Symmetric", 0, 3, 4, 3, -1, 1))
sketch5.addConstraint(Sketcher.Constraint("Radius", 0, Q("5 mm")))
sketch5.addConstraint(Sketcher.Constraint("Diameter", 8, Q("3.5 mm")))
sketch5.addConstraint(Sketcher.Constraint("DistanceX", 1, 2, 1, 1, Q("20 mm")))
sketch5.addConstraint(Sketcher.Constraint("DistanceY", 3, 2, 3, 1, Q("30 mm")))
pad5 = body4.newObject("PartDesign::Pad", "Pad004")
pad5.Profile = sketch5
pad5.Length = 3

sketch6 = body4.newObject("Sketcher::SketchObject", "Sketch005")
sketch6.AttachmentSupport = (doc.getObject("XY_Plane003"), [""])
sketch6.MapMode = "FlatFace"
sketch6.AttachmentOffset = App.Placement(App.Vector(0, 0, 11), App.Rotation())
sketch6.addGeometry(Part.LineSegment(App.Vector(4.2, 7.8, 0), App.Vector(4.2, 12.8, 0)), False)
sketch6.addGeometry(Part.ArcOfCircle(Part.Circle(App.Vector(0, 12.8, 0), App.Vector(0, 0, 1), 4.2), math.radians(0), math.radians(180)), False)
sketch6.addGeometry(Part.LineSegment(App.Vector(-4.2, 12.8, 0), App.Vector(-4.2, 7.8, 0)), False)
sketch6.addGeometry(Part.ArcOfCircle(Part.Circle(App.Vector(0, 7.8, 0), App.Vector(0, 0, 1), 4.2), math.radians(180), math.radians(360)), False)
sketch6.addConstraint(Sketcher.Constraint("Tangent", 0, 2, 1, 1))
sketch6.addConstraint(Sketcher.Constraint("Tangent", 1, 2, 2, 1))
sketch6.addConstraint(Sketcher.Constraint("Tangent", 2, 2, 3, 1))
sketch6.addConstraint(Sketcher.Constraint("Tangent", 3, 2, 0, 1))
sketch6.addConstraint(Sketcher.Constraint("Vertical", 0))
sketch6.addConstraint(Sketcher.Constraint("Vertical", 2))
sketch6.addConstraint(Sketcher.Constraint("PointOnObject", 1, 3, -2))
sketch6.addConstraint(Sketcher.Constraint("DistanceY", 0, 1, 0, 2, Q("5 mm")))
sketch6.addConstraint(Sketcher.Constraint("Radius", 1, Q("4.25 mm")))
sketch6.addConstraint(Sketcher.Constraint("DistanceY", -1, 1, 1, 3, Q("12.75 mm")))
pocket1 = body4.newObject("PartDesign::Pocket", "Pocket")
pocket1.Profile = sketch6
pocket1.Length = 3

doc.recompute()
